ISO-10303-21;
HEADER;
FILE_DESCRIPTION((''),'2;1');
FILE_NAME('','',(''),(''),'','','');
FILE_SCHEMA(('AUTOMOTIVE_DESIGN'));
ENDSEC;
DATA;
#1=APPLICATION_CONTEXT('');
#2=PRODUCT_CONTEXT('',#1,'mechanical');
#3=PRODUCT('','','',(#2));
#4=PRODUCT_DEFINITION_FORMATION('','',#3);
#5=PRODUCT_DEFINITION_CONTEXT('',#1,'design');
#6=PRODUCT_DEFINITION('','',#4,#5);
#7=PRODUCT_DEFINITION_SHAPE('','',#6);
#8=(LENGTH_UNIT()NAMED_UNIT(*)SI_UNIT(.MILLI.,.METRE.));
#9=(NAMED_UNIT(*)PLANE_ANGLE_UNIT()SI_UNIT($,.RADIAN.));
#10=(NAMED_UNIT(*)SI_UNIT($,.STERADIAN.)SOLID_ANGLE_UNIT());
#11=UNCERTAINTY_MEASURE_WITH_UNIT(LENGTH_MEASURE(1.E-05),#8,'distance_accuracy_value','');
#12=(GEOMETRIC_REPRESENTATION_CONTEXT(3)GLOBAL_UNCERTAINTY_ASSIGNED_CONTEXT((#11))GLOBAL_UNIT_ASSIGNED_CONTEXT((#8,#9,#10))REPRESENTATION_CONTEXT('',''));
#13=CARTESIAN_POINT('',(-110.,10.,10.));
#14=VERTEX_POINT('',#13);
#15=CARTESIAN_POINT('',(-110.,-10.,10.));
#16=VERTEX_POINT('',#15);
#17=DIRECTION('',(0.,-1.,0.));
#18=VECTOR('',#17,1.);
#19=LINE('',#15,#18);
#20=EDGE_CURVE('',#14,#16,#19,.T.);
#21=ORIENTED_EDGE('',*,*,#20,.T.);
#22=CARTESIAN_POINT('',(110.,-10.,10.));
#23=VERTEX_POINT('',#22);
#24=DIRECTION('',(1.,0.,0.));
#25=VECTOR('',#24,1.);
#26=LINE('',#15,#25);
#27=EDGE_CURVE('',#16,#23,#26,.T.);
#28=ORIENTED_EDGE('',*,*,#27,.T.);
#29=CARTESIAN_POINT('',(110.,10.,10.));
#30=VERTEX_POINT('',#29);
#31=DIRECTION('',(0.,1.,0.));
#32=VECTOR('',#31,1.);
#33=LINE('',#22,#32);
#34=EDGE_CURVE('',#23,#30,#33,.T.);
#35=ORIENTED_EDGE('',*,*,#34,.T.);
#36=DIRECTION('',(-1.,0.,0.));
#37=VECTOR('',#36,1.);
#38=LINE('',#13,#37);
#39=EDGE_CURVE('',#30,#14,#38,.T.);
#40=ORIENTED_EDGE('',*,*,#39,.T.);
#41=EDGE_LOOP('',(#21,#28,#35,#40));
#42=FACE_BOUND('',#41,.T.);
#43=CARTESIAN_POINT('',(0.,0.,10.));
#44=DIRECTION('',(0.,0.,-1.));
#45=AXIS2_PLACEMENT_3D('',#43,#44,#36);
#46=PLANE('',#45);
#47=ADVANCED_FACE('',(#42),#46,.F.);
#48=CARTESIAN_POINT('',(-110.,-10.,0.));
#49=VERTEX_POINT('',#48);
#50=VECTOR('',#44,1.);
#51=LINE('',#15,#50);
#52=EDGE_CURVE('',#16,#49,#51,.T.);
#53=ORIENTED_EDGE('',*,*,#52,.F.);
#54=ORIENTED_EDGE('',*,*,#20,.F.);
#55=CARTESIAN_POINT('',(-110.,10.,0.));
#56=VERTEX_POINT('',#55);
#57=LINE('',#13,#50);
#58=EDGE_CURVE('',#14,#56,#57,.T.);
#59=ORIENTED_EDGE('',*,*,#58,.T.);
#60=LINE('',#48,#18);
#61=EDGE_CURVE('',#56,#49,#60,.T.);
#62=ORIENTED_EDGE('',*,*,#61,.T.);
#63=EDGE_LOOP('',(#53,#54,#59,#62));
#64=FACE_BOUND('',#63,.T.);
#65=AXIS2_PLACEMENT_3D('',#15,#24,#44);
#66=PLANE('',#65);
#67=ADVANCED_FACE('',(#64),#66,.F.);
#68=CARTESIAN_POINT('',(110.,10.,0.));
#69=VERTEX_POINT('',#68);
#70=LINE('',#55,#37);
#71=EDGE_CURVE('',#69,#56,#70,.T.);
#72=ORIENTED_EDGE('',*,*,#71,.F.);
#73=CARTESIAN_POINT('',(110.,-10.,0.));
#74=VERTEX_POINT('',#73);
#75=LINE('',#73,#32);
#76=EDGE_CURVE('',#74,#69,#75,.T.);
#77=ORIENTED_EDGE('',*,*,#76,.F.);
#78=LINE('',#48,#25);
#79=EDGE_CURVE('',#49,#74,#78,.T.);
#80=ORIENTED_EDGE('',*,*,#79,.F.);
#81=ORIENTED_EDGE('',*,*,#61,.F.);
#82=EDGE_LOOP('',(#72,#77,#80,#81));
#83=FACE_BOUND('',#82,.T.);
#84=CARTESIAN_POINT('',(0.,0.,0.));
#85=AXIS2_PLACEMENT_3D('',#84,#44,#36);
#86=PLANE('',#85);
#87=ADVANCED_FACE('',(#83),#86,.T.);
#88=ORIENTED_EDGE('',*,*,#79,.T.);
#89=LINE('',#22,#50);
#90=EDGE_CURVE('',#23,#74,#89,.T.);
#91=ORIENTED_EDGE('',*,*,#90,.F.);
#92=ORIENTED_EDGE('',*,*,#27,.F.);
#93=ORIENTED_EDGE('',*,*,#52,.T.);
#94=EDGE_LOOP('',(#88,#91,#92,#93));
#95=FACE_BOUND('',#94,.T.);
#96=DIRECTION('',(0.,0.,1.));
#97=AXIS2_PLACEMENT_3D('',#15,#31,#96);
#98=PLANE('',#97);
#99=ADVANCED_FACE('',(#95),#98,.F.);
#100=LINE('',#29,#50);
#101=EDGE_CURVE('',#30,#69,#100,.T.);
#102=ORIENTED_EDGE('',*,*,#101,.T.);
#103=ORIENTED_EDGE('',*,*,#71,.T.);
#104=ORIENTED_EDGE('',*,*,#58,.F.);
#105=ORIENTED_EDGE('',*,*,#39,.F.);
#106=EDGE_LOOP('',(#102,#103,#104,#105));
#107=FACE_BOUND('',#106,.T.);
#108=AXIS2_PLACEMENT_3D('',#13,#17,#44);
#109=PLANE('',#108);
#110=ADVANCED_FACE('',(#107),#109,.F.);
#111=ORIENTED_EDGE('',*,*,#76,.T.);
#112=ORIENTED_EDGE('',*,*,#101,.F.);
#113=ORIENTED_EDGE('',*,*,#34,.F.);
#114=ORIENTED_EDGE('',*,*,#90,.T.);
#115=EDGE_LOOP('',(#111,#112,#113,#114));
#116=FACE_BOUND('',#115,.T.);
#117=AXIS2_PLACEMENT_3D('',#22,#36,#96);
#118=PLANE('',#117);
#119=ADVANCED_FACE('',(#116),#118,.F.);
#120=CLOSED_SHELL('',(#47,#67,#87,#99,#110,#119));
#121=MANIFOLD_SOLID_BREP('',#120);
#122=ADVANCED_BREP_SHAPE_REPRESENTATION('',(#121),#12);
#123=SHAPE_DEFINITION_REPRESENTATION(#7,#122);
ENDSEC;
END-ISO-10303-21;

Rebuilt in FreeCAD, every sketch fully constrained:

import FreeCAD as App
import Part
import Sketcher
from FreeCAD import Vector
Q = App.Units.Quantity

doc = App.newDocument("Part")
body = doc.addObject("PartDesign::Body", "Body")

sketch1 = body.newObject("Sketcher::SketchObject", "Sketch")
sketch1.AttachmentSupport = (doc.getObject("XY_Plane"), [""])
sketch1.MapMode = "FlatFace"
sketch1.addGeometry(Part.LineSegment(Vector(-110, 10, 0), Vector(-110, -10, 0)), False)
sketch1.addGeometry(Part.LineSegment(Vector(-110, -10, 0), Vector(110, -10, 0)), False)
sketch1.addGeometry(Part.LineSegment(Vector(110, -10, 0), Vector(110, 10, 0)), False)
sketch1.addGeometry(Part.LineSegment(Vector(110, 10, 0), Vector(-110, 10, 0)), False)
sketch1.addConstraint(Sketcher.Constraint("Coincident", 0, 2, 1, 1))
sketch1.addConstraint(Sketcher.Constraint("Coincident", 1, 2, 2, 1))
sketch1.addConstraint(Sketcher.Constraint("Coincident", 2, 2, 3, 1))
sketch1.addConstraint(Sketcher.Constraint("Coincident", 3, 2, 0, 1))
sketch1.addConstraint(Sketcher.Constraint("Vertical", 0))
sketch1.addConstraint(Sketcher.Constraint("Horizontal", 1))
sketch1.addConstraint(Sketcher.Constraint("Vertical", 2))
sketch1.addConstraint(Sketcher.Constraint("Horizontal", 3))
sketch1.addConstraint(Sketcher.Constraint("Symmetric", 0, 2, 2, 2, -1, 1))
sketch1.addConstraint(Sketcher.Constraint("DistanceX", 1, 1, 1, 2, Q("220 mm")))
sketch1.addConstraint(Sketcher.Constraint("DistanceY", 0, 2, 0, 1, Q("20 mm")))
pad1 = body.newObject("PartDesign::Pad", "Pad")
pad1.Profile = sketch1
pad1.Length = 10

doc.recompute()
